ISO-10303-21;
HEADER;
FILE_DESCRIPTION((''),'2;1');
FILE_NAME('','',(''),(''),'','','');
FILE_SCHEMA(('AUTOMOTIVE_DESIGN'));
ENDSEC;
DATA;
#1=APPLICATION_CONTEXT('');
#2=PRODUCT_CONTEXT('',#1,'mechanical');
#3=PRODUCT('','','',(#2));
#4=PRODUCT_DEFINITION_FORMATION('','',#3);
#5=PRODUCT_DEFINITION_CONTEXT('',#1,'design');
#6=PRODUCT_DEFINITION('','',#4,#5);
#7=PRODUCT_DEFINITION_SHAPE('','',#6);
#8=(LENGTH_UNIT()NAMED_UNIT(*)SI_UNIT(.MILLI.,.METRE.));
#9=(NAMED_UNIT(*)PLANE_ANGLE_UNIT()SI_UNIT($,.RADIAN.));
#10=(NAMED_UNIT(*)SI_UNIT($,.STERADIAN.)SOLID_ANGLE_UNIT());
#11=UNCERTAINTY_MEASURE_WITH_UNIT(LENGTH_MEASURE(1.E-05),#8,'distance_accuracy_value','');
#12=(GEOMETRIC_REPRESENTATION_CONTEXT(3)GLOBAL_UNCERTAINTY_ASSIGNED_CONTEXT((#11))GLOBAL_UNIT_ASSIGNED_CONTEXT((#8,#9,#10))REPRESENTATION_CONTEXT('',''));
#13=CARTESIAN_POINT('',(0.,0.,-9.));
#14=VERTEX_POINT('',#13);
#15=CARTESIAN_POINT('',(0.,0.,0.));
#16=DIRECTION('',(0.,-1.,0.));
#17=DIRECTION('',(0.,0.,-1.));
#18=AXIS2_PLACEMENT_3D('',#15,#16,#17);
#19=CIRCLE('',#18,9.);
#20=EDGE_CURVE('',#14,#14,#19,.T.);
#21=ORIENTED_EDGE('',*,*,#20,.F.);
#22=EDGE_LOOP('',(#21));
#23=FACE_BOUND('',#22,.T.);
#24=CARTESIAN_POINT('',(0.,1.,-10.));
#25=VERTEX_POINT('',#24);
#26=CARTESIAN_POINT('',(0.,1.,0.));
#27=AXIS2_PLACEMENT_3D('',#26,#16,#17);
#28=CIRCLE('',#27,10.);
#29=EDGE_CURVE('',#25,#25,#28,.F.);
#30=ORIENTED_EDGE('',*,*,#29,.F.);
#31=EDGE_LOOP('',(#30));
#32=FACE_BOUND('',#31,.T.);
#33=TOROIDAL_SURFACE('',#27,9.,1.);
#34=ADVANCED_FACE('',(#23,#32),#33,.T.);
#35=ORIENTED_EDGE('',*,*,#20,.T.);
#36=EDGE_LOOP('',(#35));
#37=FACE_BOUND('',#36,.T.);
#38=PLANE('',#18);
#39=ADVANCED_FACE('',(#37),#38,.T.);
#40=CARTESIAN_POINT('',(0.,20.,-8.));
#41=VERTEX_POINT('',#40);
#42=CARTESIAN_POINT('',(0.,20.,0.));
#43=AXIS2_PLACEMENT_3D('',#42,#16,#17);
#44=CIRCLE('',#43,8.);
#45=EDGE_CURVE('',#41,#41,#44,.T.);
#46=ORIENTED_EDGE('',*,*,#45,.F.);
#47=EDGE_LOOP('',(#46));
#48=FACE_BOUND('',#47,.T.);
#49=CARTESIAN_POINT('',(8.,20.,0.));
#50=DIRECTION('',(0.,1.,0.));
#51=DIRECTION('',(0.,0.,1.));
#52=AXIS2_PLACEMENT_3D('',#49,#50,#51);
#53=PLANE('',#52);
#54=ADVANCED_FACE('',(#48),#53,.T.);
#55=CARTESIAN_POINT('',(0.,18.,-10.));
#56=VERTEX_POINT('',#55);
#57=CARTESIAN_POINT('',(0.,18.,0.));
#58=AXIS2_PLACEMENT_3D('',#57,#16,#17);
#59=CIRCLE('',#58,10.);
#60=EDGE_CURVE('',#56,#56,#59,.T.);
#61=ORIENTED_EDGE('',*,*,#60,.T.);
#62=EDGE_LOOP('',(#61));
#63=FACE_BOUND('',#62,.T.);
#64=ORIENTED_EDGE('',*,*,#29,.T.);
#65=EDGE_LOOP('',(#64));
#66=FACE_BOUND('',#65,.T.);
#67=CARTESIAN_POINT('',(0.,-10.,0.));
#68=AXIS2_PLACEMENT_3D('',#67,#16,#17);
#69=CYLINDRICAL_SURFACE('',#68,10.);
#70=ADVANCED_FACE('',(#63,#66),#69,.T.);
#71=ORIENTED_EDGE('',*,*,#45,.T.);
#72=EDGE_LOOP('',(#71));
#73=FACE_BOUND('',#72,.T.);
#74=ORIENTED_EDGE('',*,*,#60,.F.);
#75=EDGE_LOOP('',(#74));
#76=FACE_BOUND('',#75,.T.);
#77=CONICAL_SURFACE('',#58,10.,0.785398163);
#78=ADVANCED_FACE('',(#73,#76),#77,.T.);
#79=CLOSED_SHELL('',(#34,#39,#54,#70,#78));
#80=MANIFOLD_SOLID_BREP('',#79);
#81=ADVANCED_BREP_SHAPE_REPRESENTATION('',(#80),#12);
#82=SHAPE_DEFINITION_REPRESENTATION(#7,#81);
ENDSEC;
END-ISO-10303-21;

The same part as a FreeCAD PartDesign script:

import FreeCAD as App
import Part
import Sketcher
from FreeCAD import Vector


def edges_at(feature, points):
    """Names of the edges that pass closest to the given points."""
    edges = feature.Shape.Edges
    near = lambda p: min(range(len(edges)), key=lambda i: edges[i].distToShape(Part.Vertex(*p))[0])
    return sorted({f"Edge{near(p) + 1}" for p in points})

doc = App.newDocument("Part")
body = doc.addObject("PartDesign::Body", "Body")

sketch1 = body.newObject("Sketcher::SketchObject", "Sketch")
sketch1.AttachmentSupport = (doc.getObject("XY_Plane"), [""])
sketch1.MapMode = "FlatFace"
sketch1.addGeometry(Part.LineSegment(Vector(0, 0, 0), Vector(10, 0, 0)), False)
sketch1.addGeometry(Part.LineSegment(Vector(10, 0, 0), Vector(10, 18, 0)), False)
sketch1.addGeometry(Part.LineSegment(Vector(10, 18, 0), Vector(8, 20, 0)), False)
sketch1.addGeometry(Part.LineSegment(Vector(8, 20, 0), Vector(0, 20, 0)), False)
sketch1.addGeometry(Part.LineSegment(Vector(0, 20, 0), Vector(0, 0, 0)), False)
sketch1.addConstraint(Sketcher.Constraint("Coincident", 0, 2, 1, 1))
sketch1.addConstraint(Sketcher.Constraint("Coincident", 1, 2, 2, 1))
sketch1.addConstraint(Sketcher.Constraint("Coincident", 2, 2, 3, 1))
sketch1.addConstraint(Sketcher.Constraint("Coincident", 3, 2, 4, 1))
sketch1.addConstraint(Sketcher.Constraint("Coincident", 4, 2, 0, 1))
sketch1.addConstraint(Sketcher.Constraint("Horizontal", 0))
sketch1.addConstraint(Sketcher.Constraint("Vertical", 1))
sketch1.addConstraint(Sketcher.Constraint("Horizontal", 3))
sketch1.addConstraint(Sketcher.Constraint("Vertical", 4))
sketch1.addConstraint(Sketcher.Constraint("Coincident", 4, 2, -1, 1))
sketch1.addConstraint(Sketcher.Constraint("DistanceX", 0, 1, 0, 2, 10.0))
sketch1.addConstraint(Sketcher.Constraint("DistanceX", 3, 2, 3, 1, 8.0))
sketch1.addConstraint(Sketcher.Constraint("DistanceY", 1, 1, 1, 2, 18.0))
sketch1.addConstraint(Sketcher.Constraint("DistanceY", 4, 2, 4, 1, 20.0))
revolution = body.newObject("PartDesign::Revolution", "Revolution")
revolution.Profile = sketch1
revolution.ReferenceAxis = (sketch1, ["V_Axis"])
revolution.Angle = 360
doc.recompute()

fillet = body.newObject("PartDesign::Fillet", "Fillet")
fillet.Base = (revolution, edges_at(revolution, [(0, 0, 10)]))
fillet.Radius = 1

doc.recompute()
